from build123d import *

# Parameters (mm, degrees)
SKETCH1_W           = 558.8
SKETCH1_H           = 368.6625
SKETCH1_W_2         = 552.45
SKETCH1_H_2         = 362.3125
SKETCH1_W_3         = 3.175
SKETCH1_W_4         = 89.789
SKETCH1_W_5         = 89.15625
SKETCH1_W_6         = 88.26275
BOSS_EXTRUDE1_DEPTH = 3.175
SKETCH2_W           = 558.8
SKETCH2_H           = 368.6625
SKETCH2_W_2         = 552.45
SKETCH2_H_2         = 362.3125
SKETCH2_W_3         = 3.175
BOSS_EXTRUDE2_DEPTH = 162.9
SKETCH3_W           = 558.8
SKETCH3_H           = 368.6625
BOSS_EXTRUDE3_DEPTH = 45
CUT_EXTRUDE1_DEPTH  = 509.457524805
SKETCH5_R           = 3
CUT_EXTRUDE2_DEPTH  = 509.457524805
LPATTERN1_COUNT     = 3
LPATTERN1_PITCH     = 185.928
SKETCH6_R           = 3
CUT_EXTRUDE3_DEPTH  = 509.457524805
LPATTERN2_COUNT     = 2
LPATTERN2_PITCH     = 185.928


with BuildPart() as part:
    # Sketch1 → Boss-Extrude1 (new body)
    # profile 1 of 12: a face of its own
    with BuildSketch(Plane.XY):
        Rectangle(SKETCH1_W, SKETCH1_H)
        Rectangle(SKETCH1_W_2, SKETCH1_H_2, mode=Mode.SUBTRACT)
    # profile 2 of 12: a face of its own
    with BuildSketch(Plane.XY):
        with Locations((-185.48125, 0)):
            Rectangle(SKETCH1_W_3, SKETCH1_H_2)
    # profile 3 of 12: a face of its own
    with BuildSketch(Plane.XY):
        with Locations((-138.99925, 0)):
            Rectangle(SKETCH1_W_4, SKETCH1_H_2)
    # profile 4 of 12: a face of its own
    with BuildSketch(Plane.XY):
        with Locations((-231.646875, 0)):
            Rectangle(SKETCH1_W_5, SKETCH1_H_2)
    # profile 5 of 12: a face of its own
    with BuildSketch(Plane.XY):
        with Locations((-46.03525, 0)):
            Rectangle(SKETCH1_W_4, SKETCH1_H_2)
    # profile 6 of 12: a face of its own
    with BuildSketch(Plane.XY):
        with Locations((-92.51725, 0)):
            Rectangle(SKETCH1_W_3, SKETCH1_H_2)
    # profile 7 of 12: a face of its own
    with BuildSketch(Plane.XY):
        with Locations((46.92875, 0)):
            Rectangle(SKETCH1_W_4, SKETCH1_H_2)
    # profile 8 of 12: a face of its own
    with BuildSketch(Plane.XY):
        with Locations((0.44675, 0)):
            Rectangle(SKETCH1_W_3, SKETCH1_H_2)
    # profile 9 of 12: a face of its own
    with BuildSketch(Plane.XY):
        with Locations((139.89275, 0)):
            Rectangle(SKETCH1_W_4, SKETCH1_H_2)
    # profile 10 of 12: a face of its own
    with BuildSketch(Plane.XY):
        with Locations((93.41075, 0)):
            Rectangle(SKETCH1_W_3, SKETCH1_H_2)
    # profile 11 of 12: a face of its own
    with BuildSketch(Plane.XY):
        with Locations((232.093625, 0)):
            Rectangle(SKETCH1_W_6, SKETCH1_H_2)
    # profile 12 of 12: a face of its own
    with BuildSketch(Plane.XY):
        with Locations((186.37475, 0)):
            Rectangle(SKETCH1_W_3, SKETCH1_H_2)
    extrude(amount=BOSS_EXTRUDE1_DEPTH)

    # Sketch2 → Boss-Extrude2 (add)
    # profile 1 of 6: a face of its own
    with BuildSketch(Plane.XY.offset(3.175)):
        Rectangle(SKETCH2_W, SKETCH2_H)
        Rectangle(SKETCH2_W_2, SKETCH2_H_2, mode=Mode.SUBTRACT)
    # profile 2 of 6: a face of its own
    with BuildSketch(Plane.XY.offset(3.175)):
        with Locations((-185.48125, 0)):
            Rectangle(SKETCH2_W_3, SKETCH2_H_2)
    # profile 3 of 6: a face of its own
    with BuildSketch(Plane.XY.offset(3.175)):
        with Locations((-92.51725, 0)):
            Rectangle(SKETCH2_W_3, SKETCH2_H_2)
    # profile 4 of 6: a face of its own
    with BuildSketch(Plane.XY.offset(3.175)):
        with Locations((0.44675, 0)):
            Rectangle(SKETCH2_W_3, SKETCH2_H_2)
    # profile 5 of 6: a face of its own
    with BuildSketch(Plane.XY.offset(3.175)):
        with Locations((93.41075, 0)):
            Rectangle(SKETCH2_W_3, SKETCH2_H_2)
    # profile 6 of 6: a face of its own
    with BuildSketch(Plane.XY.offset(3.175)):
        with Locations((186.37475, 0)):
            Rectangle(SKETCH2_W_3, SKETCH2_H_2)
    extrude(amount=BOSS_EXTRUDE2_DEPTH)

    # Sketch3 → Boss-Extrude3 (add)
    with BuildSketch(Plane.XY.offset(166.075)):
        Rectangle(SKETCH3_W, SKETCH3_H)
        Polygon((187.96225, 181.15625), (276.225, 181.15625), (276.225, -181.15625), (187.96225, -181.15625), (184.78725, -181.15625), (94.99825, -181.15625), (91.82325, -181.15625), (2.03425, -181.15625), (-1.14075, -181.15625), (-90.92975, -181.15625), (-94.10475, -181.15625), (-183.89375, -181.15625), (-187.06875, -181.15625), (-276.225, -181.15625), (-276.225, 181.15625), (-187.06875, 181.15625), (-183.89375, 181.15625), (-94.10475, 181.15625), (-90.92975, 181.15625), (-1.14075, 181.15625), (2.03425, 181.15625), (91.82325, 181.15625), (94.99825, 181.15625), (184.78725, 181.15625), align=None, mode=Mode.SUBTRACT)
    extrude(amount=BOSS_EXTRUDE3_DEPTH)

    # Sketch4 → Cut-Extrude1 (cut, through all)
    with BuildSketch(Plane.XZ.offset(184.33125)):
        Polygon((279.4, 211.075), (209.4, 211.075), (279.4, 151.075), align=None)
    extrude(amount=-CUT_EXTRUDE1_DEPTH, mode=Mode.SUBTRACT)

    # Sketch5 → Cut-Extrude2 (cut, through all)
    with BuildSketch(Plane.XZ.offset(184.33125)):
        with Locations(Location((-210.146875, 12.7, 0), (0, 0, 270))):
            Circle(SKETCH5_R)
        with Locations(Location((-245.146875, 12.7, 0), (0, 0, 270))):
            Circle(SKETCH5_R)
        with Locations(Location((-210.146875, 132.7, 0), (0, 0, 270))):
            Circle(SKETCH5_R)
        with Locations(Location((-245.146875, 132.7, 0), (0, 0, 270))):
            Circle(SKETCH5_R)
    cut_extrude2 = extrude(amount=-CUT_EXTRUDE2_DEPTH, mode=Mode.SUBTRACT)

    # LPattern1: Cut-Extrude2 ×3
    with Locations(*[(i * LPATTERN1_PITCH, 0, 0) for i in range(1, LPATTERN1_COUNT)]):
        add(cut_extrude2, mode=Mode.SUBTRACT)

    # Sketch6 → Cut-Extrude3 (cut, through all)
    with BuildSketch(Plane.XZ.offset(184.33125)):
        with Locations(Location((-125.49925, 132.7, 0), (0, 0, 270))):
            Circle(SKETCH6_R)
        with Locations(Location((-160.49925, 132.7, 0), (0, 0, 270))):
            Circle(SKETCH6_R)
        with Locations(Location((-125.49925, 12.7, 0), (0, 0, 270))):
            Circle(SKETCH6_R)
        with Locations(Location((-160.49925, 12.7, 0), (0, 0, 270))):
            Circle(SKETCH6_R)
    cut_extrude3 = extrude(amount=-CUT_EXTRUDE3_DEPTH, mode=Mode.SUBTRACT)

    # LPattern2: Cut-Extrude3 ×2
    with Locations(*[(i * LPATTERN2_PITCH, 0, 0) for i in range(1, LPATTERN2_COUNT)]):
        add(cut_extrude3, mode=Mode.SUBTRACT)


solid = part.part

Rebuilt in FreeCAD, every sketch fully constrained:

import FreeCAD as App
import Part
import Sketcher

V = App.Vector


def add_polygon(sketch, points):
    """Adds a closed chain of lines whose ends are joined by coincident constraints."""
    first, n = sketch.GeometryCount, len(points)
    for a, b in zip(points, points[1:] + points[:1]):
        sketch.addGeometry(Part.LineSegment(App.Vector(*a, 0), App.Vector(*b, 0)), False)
    for i in range(n):
        sketch.addConstraint(Sketcher.Constraint("Coincident", first + i, 2, first + (i + 1) % n, 1))

doc = App.newDocument("Part")
body = doc.addObject("PartDesign::Body", "Body")

# Sketch on XY plane
sketch1 = body.newObject("Sketcher::SketchObject", "Sketch")
sketch1.AttachmentSupport = (doc.getObject("XY_Plane"), [""])
sketch1.MapMode = "FlatFace"
add_polygon(sketch1, [(-279, 184), (-279, -184), (279, -184), (279, 184)])  # lines 0-3
sketch1.addConstraint(Sketcher.Constraint("Vertical", 0))
sketch1.addConstraint(Sketcher.Constraint("Horizontal", 1))
sketch1.addConstraint(Sketcher.Constraint("Vertical", 2))
sketch1.addConstraint(Sketcher.Constraint("Horizontal", 3))
sketch1.addConstraint(Sketcher.Constraint("Symmetric", 0, 2, 2, 2, -1, 1))
sketch1.addConstraint(Sketcher.Constraint("DistanceX", 1, 1, 1, 2, 558.8))
sketch1.addConstraint(Sketcher.Constraint("DistanceY", 0, 2, 0, 1, 368.6625))
pad1 = body.newObject("PartDesign::Pad", "Pad")
pad1.Profile = sketch1
pad1.Length = 3.175

# Sketch on XY plane
sketch2 = body.newObject("Sketcher::SketchObject", "Sketch001")
sketch2.AttachmentSupport = (doc.getObject("XY_Plane"), [""])
sketch2.MapMode = "FlatFace"
sketch2.AttachmentOffset = App.Placement(V(0, 0, 3.175), App.Rotation())
add_polygon(sketch2, [(-279, 184), (-279, -184), (279, -184), (279, 184)])  # lines 0-3
add_polygon(sketch2, [(-187, -181), (-276, -181), (-276, 181), (-187, 181)])  # lines 4-7
add_polygon(sketch2, [(-94, -181), (-184, -181), (-184, 181), (-94, 181)])  # lines 8-11
add_polygon(sketch2, [(-1, -181), (-91, -181), (-91, 181), (-1, 181)])  # lines 12-15
add_polygon(sketch2, [(92, -181), (2, -181), (2, 181), (92, 181)])  # lines 16-19
add_polygon(sketch2, [(185, -181), (95, -181), (95, 181), (185, 181)])  # lines 20-23
add_polygon(sketch2, [(276, -181), (188, -181), (188, 181), (276, 181)])  # lines 24-27
sketch2.addConstraint(Sketcher.Constraint("Vertical", 0))
sketch2.addConstraint(Sketcher.Constraint("Horizontal", 1))
sketch2.addConstraint(Sketcher.Constraint("Vertical", 2))
sketch2.addConstraint(Sketcher.Constraint("Horizontal", 3))
sketch2.addConstraint(Sketcher.Constraint("Horizontal", 4))
sketch2.addConstraint(Sketcher.Constraint("Vertical", 5))
sketch2.addConstraint(Sketcher.Constraint("Horizontal", 6))
sketch2.addConstraint(Sketcher.Constraint("Vertical", 7))
sketch2.addConstraint(Sketcher.Constraint("Horizontal", 8))
sketch2.addConstraint(Sketcher.Constraint("Vertical", 9))
sketch2.addConstraint(Sketcher.Constraint("Horizontal", 10))
sketch2.addConstraint(Sketcher.Constraint("Vertical", 11))
sketch2.addConstraint(Sketcher.Constraint("Horizontal", 12))
sketch2.addConstraint(Sketcher.Constraint("Vertical", 13))
sketch2.addConstraint(Sketcher.Constraint("Horizontal", 14))
sketch2.addConstraint(Sketcher.Constraint("Vertical", 15))
sketch2.addConstraint(Sketcher.Constraint("Horizontal", 16))
sketch2.addConstraint(Sketcher.Constraint("Vertical", 17))
sketch2.addConstraint(Sketcher.Constraint("Horizontal", 18))
sketch2.addConstraint(Sketcher.Constraint("Vertical", 19))
sketch2.addConstraint(Sketcher.Constraint("Horizontal", 20))
sketch2.addConstraint(Sketcher.Constraint("Vertical", 21))
sketch2.addConstraint(Sketcher.Constraint("Horizontal", 22))
sketch2.addConstraint(Sketcher.Constraint("Vertical", 23))
sketch2.addConstraint(Sketcher.Constraint("Horizontal", 24))
sketch2.addConstraint(Sketcher.Constraint("Vertical", 25))
sketch2.addConstraint(Sketcher.Constraint("Horizontal", 26))
sketch2.addConstraint(Sketcher.Constraint("Vertical", 27))
sketch2.addConstraint(Sketcher.Constraint("Symmetric", 0, 2, 2, 2, -1, 1))
sketch2.addConstraint(Sketcher.Constraint("Symmetric", 4, 2, 26, 2, -1, 1))
sketch2.addConstraint(Sketcher.Constraint("Horizontal", 7, 2, 8, 2))
sketch2.addConstraint(Sketcher.Constraint("Horizontal", 6, 2, 9, 2))
sketch2.addConstraint(Sketcher.Constraint("Horizontal", 11, 2, 12, 2))
sketch2.addConstraint(Sketcher.Constraint("Horizontal", 10, 2, 13, 2))
sketch2.addConstraint(Sketcher.Constraint("Horizontal", 15, 2, 16, 2))
sketch2.addConstraint(Sketcher.Constraint("Horizontal", 14, 2, 17, 2))
sketch2.addConstraint(Sketcher.Constraint("Horizontal", 19, 2, 20, 2))
sketch2.addConstraint(Sketcher.Constraint("Horizontal", 18, 2, 21, 2))
sketch2.addConstraint(Sketcher.Constraint("Horizontal", 23, 2, 24, 2))
sketch2.addConstraint(Sketcher.Constraint("Horizontal", 22, 2, 25, 2))
sketch2.addConstraint(Sketcher.Constraint("Equal", 10, 12))
sketch2.addConstraint(Sketcher.Constraint("Equal", 14, 16))
sketch2.addConstraint(Sketcher.Constraint("Equal", 18, 20))
sketch2.addConstraint(Sketcher.Constraint("DistanceX", 1, 1, 1, 2, 558.8))
sketch2.addConstraint(Sketcher.Constraint("DistanceX", 8, 2, 8, 1, 89.789))
sketch2.addConstraint(Sketcher.Constraint("DistanceY", 0, 2, 0, 1, 368.6625))
sketch2.addConstraint(Sketcher.Constraint("DistanceY", 5, 1, 5, 2, 362.3125))
sketch2.addConstraint(Sketcher.Constraint("DistanceX", 4, 2, -1, 1, 276.225))
sketch2.addConstraint(Sketcher.Constraint("DistanceX", 7, 2, 8, 2, 3.175))
sketch2.addConstraint(Sketcher.Constraint("DistanceX", 11, 2, 12, 2, 3.175))
sketch2.addConstraint(Sketcher.Constraint("DistanceX", 15, 2, 16, 2, 3.175))
sketch2.addConstraint(Sketcher.Constraint("DistanceX", 19, 2, 20, 2, 3.175))
sketch2.addConstraint(Sketcher.Constraint("DistanceX", 23, 2, 24, 2, 3.175))
sketch2.addConstraint(Sketcher.Constraint("DistanceX", 4, 2, 4, 1, 89.15625))
pad2 = body.newObject("PartDesign::Pad", "Pad001")
pad2.Profile = sketch2
pad2.Length = 162.9

# Sketch on XY plane
sketch3 = body.newObject("Sketcher::SketchObject", "Sketch002")
sketch3.AttachmentSupport = (doc.getObject("XY_Plane"), [""])
sketch3.MapMode = "FlatFace"
sketch3.AttachmentOffset = App.Placement(V(0, 0, 166.075), App.Rotation())
add_polygon(sketch3, [(-279, 184), (-279, -184), (279, -184), (279, 184)])  # lines 0-3
add_polygon(sketch3, [(-276, 181), (276, 181), (276, -181), (-276, -181)])  # lines 4-7
sketch3.addConstraint(Sketcher.Constraint("Vertical", 0))
sketch3.addConstraint(Sketcher.Constraint("Horizontal", 1))
sketch3.addConstraint(Sketcher.Constraint("Vertical", 2))
sketch3.addConstraint(Sketcher.Constraint("Horizontal", 3))
sketch3.addConstraint(Sketcher.Constraint("Horizontal", 4))
sketch3.addConstraint(Sketcher.Constraint("Vertical", 5))
sketch3.addConstraint(Sketcher.Constraint("Horizontal", 6))
sketch3.addConstraint(Sketcher.Constraint("Vertical", 7))
sketch3.addConstraint(Sketcher.Constraint("Symmetric", 0, 2, 2, 2, -1, 1))
sketch3.addConstraint(Sketcher.Constraint("Symmetric", 4, 2, 6, 2, -1, 1))
sketch3.addConstraint(Sketcher.Constraint("DistanceX", 1, 1, 1, 2, 558.8))
sketch3.addConstraint(Sketcher.Constraint("DistanceX", 4, 1, 4, 2, 552.45))
sketch3.addConstraint(Sketcher.Constraint("DistanceY", 0, 2, 0, 1, 368.6625))
sketch3.addConstraint(Sketcher.Constraint("DistanceY", 5, 2, 5, 1, 362.3125))
pad3 = body.newObject("PartDesign::Pad", "Pad002")
pad3.Profile = sketch3
pad3.Length = 45

# Sketch on XZ plane
sketch4 = body.newObject("Sketcher::SketchObject", "Sketch003")
sketch4.AttachmentSupport = (doc.getObject("XZ_Plane"), [""])
sketch4.MapMode = "FlatFace"
sketch4.AttachmentOffset = App.Placement(V(0, 0, 184.33125), App.Rotation())
add_polygon(sketch4, [(279, 211), (209, 211), (279, 151)])  # lines 0-2
sketch4.addConstraint(Sketcher.Constraint("Horizontal", 0))
sketch4.addConstraint(Sketcher.Constraint("Vertical", 2))
sketch4.addConstraint(Sketcher.Constraint("DistanceX", 0, 2, 0, 1, 70.0))
sketch4.addConstraint(Sketcher.Constraint("DistanceY", 2, 1, 2, 2, 60.0))
sketch4.addConstraint(Sketcher.Constraint("DistanceX", -1, 1, 0, 2, 209.4))
sketch4.addConstraint(Sketcher.Constraint("DistanceY", -1, 1, 0, 2, 211.075))
pocket1 = body.newObject("PartDesign::Pocket", "Pocket")
pocket1.Profile = sketch4
pocket1.Type = "ThroughAll"

# Sketch on XZ plane
sketch5 = body.newObject("Sketcher::SketchObject", "Sketch004")
sketch5.AttachmentSupport = (doc.getObject("XZ_Plane"), [""])
sketch5.MapMode = "FlatFace"
sketch5.AttachmentOffset = App.Placement(V(0, 0, 184.33125), App.Rotation())
sketch5.addGeometry(Part.Circle(V(-210.1, 12.7, 0), V(0, 0, 1), 3), False)
sketch5.addGeometry(Part.Circle(V(-245.1, 12.7, 0), V(0, 0, 1), 3), False)
sketch5.addGeometry(Part.Circle(V(-210.1, 132.7, 0), V(0, 0, 1), 3), False)
sketch5.addGeometry(Part.Circle(V(-245.1, 132.7, 0), V(0, 0, 1), 3), False)
sketch5.addConstraint(Sketcher.Constraint("Equal", 0, 1))
sketch5.addConstraint(Sketcher.Constraint("Equal", 1, 2))
sketch5.addConstraint(Sketcher.Constraint("Equal", 2, 3))
sketch5.addConstraint(Sketcher.Constraint("Horizontal", 0, 3, 1, 3))
sketch5.addConstraint(Sketcher.Constraint("Horizontal", 2, 3, 3, 3))
sketch5.addConstraint(Sketcher.Constraint("Vertical", 0, 3, 2, 3))
sketch5.addConstraint(Sketcher.Constraint("Vertical", 1, 3, 3, 3))
sketch5.addConstraint(Sketcher.Constraint("Diameter", 0, 6.0))
sketch5.addConstraint(Sketcher.Constraint("DistanceX", 1, 3, 0, 3, 35.0))
sketch5.addConstraint(Sketcher.Constraint("DistanceY", 0, 3, 2, 3, 120.0))
sketch5.addConstraint(Sketcher.Constraint("DistanceY", -1, 1, 0, 3, 12.7))
sketch5.addConstraint(Sketcher.Constraint("DistanceX", 0, 3, -1, 1, 210.146875))
pocket2 = body.newObject("PartDesign::Pocket", "Pocket001")
pocket2.Profile = sketch5
pocket2.Type = "ThroughAll"
doc.recompute()

linearpattern = body.newObject("PartDesign::LinearPattern", "LinearPattern")
linearpattern.Originals = [pocket2]
linearpattern.Direction = (doc.getObject("X_Axis"), [""])
linearpattern.Mode = "offset"
linearpattern.Offset = 185.928
linearpattern.Occurrences = 3
body.Tip = linearpattern

# Sketch on XZ plane
sketch6 = body.newObject("Sketcher::SketchObject", "Sketch005")
sketch6.AttachmentSupport = (doc.getObject("XZ_Plane"), [""])
sketch6.MapMode = "FlatFace"
sketch6.AttachmentOffset = App.Placement(V(0, 0, 184.33125), App.Rotation())
sketch6.addGeometry(Part.Circle(V(-125.5, 132.7, 0), V(0, 0, 1), 3), False)
sketch6.addGeometry(Part.Circle(V(-160.5, 132.7, 0), V(0, 0, 1), 3), False)
sketch6.addGeometry(Part.Circle(V(-125.5, 12.7, 0), V(0, 0, 1), 3), False)
sketch6.addGeometry(Part.Circle(V(-160.5, 12.7, 0), V(0, 0, 1), 3), False)
sketch6.addConstraint(Sketcher.Constraint("Equal", 0, 1))
sketch6.addConstraint(Sketcher.Constraint("Equal", 1, 2))
sketch6.addConstraint(Sketcher.Constraint("Equal", 2, 3))
sketch6.addConstraint(Sketcher.Constraint("Horizontal", 0, 3, 1, 3))
sketch6.addConstraint(Sketcher.Constraint("Horizontal", 2, 3, 3, 3))
sketch6.addConstraint(Sketcher.Constraint("Vertical", 0, 3, 2, 3))
sketch6.addConstraint(Sketcher.Constraint("Vertical", 1, 3, 3, 3))
sketch6.addConstraint(Sketcher.Constraint("Diameter", 0, 6.0))
sketch6.addConstraint(Sketcher.Constraint("DistanceX", 1, 3, 0, 3, 35.0))
sketch6.addConstraint(Sketcher.Constraint("DistanceY", 2, 3, 0, 3, 120.0))
sketch6.addConstraint(Sketcher.Constraint("DistanceY", -1, 1, 0, 3, 132.7))
sketch6.addConstraint(Sketcher.Constraint("DistanceX", 0, 3, -1, 1, 125.49925))
pocket3 = body.newObject("PartDesign::Pocket", "Pocket002")
pocket3.Profile = sketch6
pocket3.Type = "ThroughAll"
doc.recompute()

linearpattern2 = body.newObject("PartDesign::LinearPattern", "LinearPattern001")
linearpattern2.Originals = [pocket3]
linearpattern2.Direction = (doc.getObject("X_Axis"), [""])
linearpattern2.Mode = "offset"
linearpattern2.Offset = 185.928
linearpattern2.Occurrences = 2
body.Tip = linearpattern2

doc.recompute()
